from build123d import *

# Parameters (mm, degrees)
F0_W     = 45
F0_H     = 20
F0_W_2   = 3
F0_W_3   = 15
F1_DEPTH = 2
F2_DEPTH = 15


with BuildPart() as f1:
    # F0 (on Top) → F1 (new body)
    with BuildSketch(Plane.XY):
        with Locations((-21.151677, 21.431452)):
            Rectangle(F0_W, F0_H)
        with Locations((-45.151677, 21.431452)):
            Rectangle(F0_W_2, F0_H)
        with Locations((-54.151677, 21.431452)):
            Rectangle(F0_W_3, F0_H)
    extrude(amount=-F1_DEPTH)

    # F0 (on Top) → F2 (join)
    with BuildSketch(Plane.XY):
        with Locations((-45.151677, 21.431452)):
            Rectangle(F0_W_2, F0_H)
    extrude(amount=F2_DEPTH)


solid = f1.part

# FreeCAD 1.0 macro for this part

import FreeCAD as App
import Part
import Sketcher

doc = App.newDocument("Part")
params = doc.addObject("Spreadsheet::Sheet", "Params")
for row, (alias, value) in enumerate([
    ("sketch1_width", "63 mm"),
    ("sketch1_height", "20 mm"),
    ("pad1_length", "2 mm"),
    ("sketch2_width", "3 mm"),
    ("sketch2_height", "20 mm"),
    ("pad2_length", "15 mm"),
], start=1):
    params.set(f"A{row}", alias)
    params.set(f"B{row}", "=" + value)
    params.setAlias(f"B{row}", alias)

body = doc.addObject("PartDesign::Body", "Body")

# Sketch on XY plane
sketch1 = doc.addObject("Sketcher::SketchObject", "Sketch")
body.addObject(sketch1)
sketch1.AttachmentSupport = (doc.XY_Plane, [""])
sketch1.MapMode = "FlatFace"
sketch1.addGeometry([
    Part.LineSegment(App.Vector(1, 11, 0), App.Vector(1, 31, 0)),
    Part.LineSegment(App.Vector(1, 31, 0), App.Vector(-62, 31, 0)),
    Part.LineSegment(App.Vector(-62, 31, 0), App.Vector(-62, 11, 0)),
    Part.LineSegment(App.Vector(-62, 11, 0), App.Vector(1, 11, 0)),
], False)
sketch1.addConstraint([
    Sketcher.Constraint("Coincident", 0, 2, 1, 1),
    Sketcher.Constraint("Coincident", 1, 2, 2, 1),
    Sketcher.Constraint("Coincident", 2, 2, 3, 1),
    Sketcher.Constraint("Coincident", 3, 2, 0, 1),
    Sketcher.Constraint("Vertical", 0),
    Sketcher.Constraint("Horizontal", 1),
    Sketcher.Constraint("Vertical", 2),
    Sketcher.Constraint("Horizontal", 3),
    Sketcher.Constraint("DistanceX", 1, 2, 1, 1, 63.0),
    Sketcher.Constraint("DistanceY", 0, 1, 0, 2, 20.0),
    Sketcher.Constraint("DistanceY", -1, 1, 0, 2, 31.431452),
    Sketcher.Constraint("DistanceX", -1, 1, 0, 2, 1.348323),
])
sketch1.setExpression("Constraints[8]", "Params.sketch1_width")
sketch1.setExpression("Constraints[9]", "Params.sketch1_height")
pad1 = doc.addObject("PartDesign::Pad", "Pad")
body.addObject(pad1)
pad1.Profile = sketch1
pad1.setExpression("Length", "Params.pad1_length")
pad1.Reversed = True

# Sketch on XY plane
sketch2 = doc.addObject("Sketcher::SketchObject", "Sketch001")
body.addObject(sketch2)
sketch2.AttachmentSupport = (doc.XY_Plane, [""])
sketch2.MapMode = "FlatFace"
sketch2.addGeometry([
    Part.LineSegment(App.Vector(-46.7, 31.4, 0), App.Vector(-46.7, 11.4, 0)),
    Part.LineSegment(App.Vector(-46.7, 11.4, 0), App.Vector(-43.7, 11.4, 0)),
    Part.LineSegment(App.Vector(-43.7, 11.4, 0), App.Vector(-43.7, 31.4, 0)),
    Part.LineSegment(App.Vector(-43.7, 31.4, 0), App.Vector(-46.7, 31.4, 0)),
], False)
sketch2.addConstraint([
    Sketcher.Constraint("Coincident", 0, 2, 1, 1),
    Sketcher.Constraint("Coincident", 1, 2, 2, 1),
    Sketcher.Constraint("Coincident", 2, 2, 3, 1),
    Sketcher.Constraint("Coincident", 3, 2, 0, 1),
    Sketcher.Constraint("Vertical", 0),
    Sketcher.Constraint("Horizontal", 1),
    Sketcher.Constraint("Vertical", 2),
    Sketcher.Constraint("Horizontal", 3),
    Sketcher.Constraint("DistanceX", 1, 1, 1, 2, 3.0),
    Sketcher.Constraint("DistanceY", 0, 2, 0, 1, 20.0),
    Sketcher.Constraint("DistanceY", -1, 1, 2, 2, 31.431452),
    Sketcher.Constraint("DistanceX", 0, 2, -1, 1, 46.651677),
])
sketch2.setExpression("Constraints[8]", "Params.sketch2_width")
sketch2.setExpression("Constraints[9]", "Params.sketch2_height")
pad2 = doc.addObject("PartDesign::Pad", "Pad001")
body.addObject(pad2)
pad2.Profile = sketch2
pad2.setExpression("Length", "Params.pad2_length")

doc.recompute()
